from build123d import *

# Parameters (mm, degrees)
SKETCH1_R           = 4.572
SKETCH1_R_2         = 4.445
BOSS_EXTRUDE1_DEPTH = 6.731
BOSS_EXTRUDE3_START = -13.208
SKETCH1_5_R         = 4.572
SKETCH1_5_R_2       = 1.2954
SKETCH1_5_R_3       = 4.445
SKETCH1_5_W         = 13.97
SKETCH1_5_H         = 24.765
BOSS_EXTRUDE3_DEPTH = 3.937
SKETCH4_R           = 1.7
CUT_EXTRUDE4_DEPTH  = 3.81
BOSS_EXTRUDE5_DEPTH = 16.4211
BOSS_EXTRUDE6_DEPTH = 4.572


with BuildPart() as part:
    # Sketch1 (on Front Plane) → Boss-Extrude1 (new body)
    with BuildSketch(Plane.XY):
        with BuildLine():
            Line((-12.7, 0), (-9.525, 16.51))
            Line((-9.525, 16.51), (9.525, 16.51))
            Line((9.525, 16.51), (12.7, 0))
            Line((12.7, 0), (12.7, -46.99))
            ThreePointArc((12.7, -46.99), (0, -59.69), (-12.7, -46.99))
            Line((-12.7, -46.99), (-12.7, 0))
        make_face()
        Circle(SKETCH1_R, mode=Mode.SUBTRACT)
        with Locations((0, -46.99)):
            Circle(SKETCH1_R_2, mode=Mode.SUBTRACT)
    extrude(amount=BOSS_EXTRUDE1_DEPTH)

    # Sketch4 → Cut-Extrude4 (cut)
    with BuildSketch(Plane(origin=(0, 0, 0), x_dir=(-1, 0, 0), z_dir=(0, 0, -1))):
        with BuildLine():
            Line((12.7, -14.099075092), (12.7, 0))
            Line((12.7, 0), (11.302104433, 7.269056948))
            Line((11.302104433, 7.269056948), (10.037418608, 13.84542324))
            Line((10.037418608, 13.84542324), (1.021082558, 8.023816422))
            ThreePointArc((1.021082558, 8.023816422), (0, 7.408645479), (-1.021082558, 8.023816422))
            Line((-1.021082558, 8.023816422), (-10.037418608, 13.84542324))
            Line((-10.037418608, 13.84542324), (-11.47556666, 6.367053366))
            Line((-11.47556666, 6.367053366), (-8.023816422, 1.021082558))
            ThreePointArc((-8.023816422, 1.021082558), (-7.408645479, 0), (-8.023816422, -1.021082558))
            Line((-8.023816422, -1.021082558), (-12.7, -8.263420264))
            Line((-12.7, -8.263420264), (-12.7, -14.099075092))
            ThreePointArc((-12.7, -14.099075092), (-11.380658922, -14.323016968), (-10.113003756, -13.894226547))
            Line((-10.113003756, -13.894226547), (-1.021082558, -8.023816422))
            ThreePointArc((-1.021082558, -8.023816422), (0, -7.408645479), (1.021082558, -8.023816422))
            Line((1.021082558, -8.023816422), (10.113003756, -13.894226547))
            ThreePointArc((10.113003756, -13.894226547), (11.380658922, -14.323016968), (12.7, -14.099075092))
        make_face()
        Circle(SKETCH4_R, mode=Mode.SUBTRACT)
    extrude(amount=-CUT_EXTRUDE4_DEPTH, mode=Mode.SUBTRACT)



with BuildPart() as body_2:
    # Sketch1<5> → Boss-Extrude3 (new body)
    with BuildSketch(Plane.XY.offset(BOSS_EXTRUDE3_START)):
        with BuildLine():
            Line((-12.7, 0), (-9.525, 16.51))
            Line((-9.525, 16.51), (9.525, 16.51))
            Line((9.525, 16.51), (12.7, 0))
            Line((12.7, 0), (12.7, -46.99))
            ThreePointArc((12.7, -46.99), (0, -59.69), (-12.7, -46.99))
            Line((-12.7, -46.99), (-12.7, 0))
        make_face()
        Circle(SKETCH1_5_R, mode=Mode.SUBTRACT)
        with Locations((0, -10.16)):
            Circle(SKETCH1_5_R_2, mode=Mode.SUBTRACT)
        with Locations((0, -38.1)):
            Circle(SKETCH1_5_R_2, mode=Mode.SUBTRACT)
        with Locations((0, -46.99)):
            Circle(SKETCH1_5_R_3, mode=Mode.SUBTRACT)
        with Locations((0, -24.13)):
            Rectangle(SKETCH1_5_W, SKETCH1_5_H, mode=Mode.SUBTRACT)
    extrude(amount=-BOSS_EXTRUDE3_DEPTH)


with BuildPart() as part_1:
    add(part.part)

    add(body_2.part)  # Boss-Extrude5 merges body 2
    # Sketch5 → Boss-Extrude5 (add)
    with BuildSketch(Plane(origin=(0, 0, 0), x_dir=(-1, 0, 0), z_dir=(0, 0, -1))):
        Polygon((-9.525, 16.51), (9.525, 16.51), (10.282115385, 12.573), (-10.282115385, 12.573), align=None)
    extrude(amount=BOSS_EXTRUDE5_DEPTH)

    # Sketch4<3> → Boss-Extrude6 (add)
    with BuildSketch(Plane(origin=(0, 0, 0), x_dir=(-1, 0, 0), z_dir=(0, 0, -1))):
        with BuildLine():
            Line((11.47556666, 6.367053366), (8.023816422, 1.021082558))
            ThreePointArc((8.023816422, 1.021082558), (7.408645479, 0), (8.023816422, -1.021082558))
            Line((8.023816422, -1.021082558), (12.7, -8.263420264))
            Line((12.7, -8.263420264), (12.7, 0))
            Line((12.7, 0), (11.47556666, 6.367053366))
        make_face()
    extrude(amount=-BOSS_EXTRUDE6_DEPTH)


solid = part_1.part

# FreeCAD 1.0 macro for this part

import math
import FreeCAD as App
import Part
import Sketcher
from FreeCAD import Vector
Q = App.Units.Quantity


def add_polygon(sketch, points):
    """Adds a closed chain of lines whose ends are joined by coincident constraints."""
    first, n = sketch.GeometryCount, len(points)
    for a, b in zip(points, points[1:] + points[:1]):
        sketch.addGeometry(Part.LineSegment(App.Vector(*a, 0), App.Vector(*b, 0)), False)
    for i in range(n):
        sketch.addConstraint(Sketcher.Constraint("Coincident", first + i, 2, first + (i + 1) % n, 1))

doc = App.newDocument("Part")
params = doc.addObject("Spreadsheet::Sheet", "Params")
for row, (alias, value) in enumerate([
    ("sketch1_radius", "0.5 in"),
    ("sketch1_diameter", "0.35 in"),
    ("sketch1_diameter2", "0.36 in"),
    ("sketch1_width", "0.75 in"),
    ("sketch1_height", "1.85 in"),
    ("pad1_length", "0.265 in"),
    ("pocket1_length", "0.15 in"),
    ("sketch3_radius", "0.5 in"),
    ("sketch3_diameter", "0.35 in"),
    ("sketch3_diameter2", "0.36 in"),
    ("sketch3_diameter3", "0.102 in"),
    ("sketch3_width", "0.75 in"),
    ("pad2_length", "0.155 in"),
    ("sketch4_width", "0.75 in"),
    ("pad3_length", "0.6465 in"),
    ("pad4_length", "0.18 in"),
], start=1):
    params.set(f"A{row}", alias)
    params.set(f"B{row}", "=" + value)
    params.setAlias(f"B{row}", alias)

body = doc.addObject("PartDesign::Body", "Body")

# Sketch on XY plane
sketch1 = body.newObject("Sketcher::SketchObject", "Sketch")
sketch1.AttachmentSupport = (doc.getObject("XY_Plane"), [""])
sketch1.MapMode = "FlatFace"
sketch1.addGeometry([
    Part.LineSegment(Vector(-9.5, 16.5, 0), Vector(-12.7, 0, 0)),  # 0
    Part.LineSegment(Vector(-12.7, 0, 0), Vector(-12.7, -47, 0)),  # 1
    Part.ArcOfCircle(Part.Circle(Vector(0, -47, 0), Vector(0, 0, 1), 12.7), math.radians(180), math.radians(360)),  # 2
    Part.LineSegment(Vector(12.7, -47, 0), Vector(12.7, 0, 0)),  # 3
    Part.LineSegment(Vector(12.7, 0, 0), Vector(9.5, 16.5, 0)),  # 4
    Part.LineSegment(Vector(9.5, 16.5, 0), Vector(-9.5, 16.5, 0)),  # 5
    Part.Circle(Vector(0, -47, 0), Vector(0, 0, 1), 4.4),  # 6
    Part.Circle(Vector(0, 0, 0), Vector(0, 0, 1), 4.6),  # 7
], False)
sketch1.addConstraint([
    Sketcher.Constraint("Coincident", 0, 2, 1, 1),
    Sketcher.Constraint("Tangent", 1, 2, 2, 1),
    Sketcher.Constraint("Tangent", 2, 2, 3, 1),
    Sketcher.Constraint("Coincident", 3, 2, 4, 1),
    Sketcher.Constraint("Coincident", 4, 2, 5, 1),
    Sketcher.Constraint("Coincident", 5, 2, 0, 1),
    Sketcher.Constraint("Vertical", 1),
    Sketcher.Constraint("Vertical", 3),
    Sketcher.Constraint("Horizontal", 5),
    Sketcher.Constraint("Coincident", 7, 3, -1, 1),
    Sketcher.Constraint("Coincident", 6, 3, 2, 3),
    Sketcher.Constraint("Symmetric", 0, 2, 3, 2, -1, 1),
    Sketcher.Constraint("PointOnObject", 0, 2, -1),
    Sketcher.Constraint("Equal", 0, 4),
    Sketcher.Constraint("Radius", 2, Q("0.5 in")),
    Sketcher.Constraint("Diameter", 6, Q("0.35 in")),
    Sketcher.Constraint("Diameter", 7, Q("0.36 in")),
    Sketcher.Constraint("DistanceX", 5, 2, 5, 1, Q("0.75 in")),
    Sketcher.Constraint("DistanceY", 1, 2, 1, 1, Q("1.85 in")),
    Sketcher.Constraint("DistanceY", 2, 2, 4, 2, Q("2.5 in")),
])
sketch1.setExpression("Constraints[14]", "Params.sketch1_radius")
sketch1.setExpression("Constraints[15]", "Params.sketch1_diameter")
sketch1.setExpression("Constraints[16]", "Params.sketch1_diameter2")
sketch1.setExpression("Constraints[17]", "Params.sketch1_width")
sketch1.setExpression("Constraints[18]", "Params.sketch1_height")
pad1 = body.newObject("PartDesign::Pad", "Pad")
pad1.Profile = sketch1
pad1.setExpression("Length", "Params.pad1_length")

# Sketch on XY plane
sketch2 = body.newObject("Sketcher::SketchObject", "Sketch001")
sketch2.AttachmentSupport = (doc.getObject("XY_Plane"), [""])
sketch2.MapMode = "FlatFace"
sketch2.addGeometry([
    Part.LineSegment(Vector(-12.7, -14.1, 0), Vector(-12.7, 0, 0)),  # 0
    Part.LineSegment(Vector(-12.7, 0, 0), Vector(-11.3, 7.3, 0)),  # 1
    Part.LineSegment(Vector(-11.3, 7.3, 0), Vector(-10, 13.8, 0)),  # 2
    Part.LineSegment(Vector(-10, 13.8, 0), Vector(-1, 8, 0)),  # 3
    Part.ArcOfCircle(Part.Circle(Vector(0, 8.6, 0), Vector(0, 0, 1), 1.2), math.radians(-152), math.radians(-28)),  # 4
    Part.LineSegment(Vector(1, 8, 0), Vector(10, 13.8, 0)),  # 5
    Part.LineSegment(Vector(10, 13.8, 0), Vector(11.5, 6.4, 0)),  # 6
    Part.LineSegment(Vector(11.5, 6.4, 0), Vector(8, 1, 0)),  # 7
    Part.ArcOfCircle(Part.Circle(Vector(8.6, 0, 0), Vector(0, 0, 1), 1.2), math.radians(118), math.radians(242)),  # 8
    Part.LineSegment(Vector(8, -1, 0), Vector(12.7, -8.3, 0)),  # 9
    Part.LineSegment(Vector(12.7, -8.3, 0), Vector(12.7, -14.1, 0)),  # 10
    Part.ArcOfCircle(Part.Circle(Vector(11.6, -11.6, 0), Vector(0, 0, 1), 2.7), math.radians(-123), math.radians(-66)),  # 11
    Part.LineSegment(Vector(10.1, -13.9, 0), Vector(1, -8, 0)),  # 12
    Part.ArcOfCircle(Part.Circle(Vector(0, -8.6, 0), Vector(0, 0, 1), 1.2), math.radians(28), math.radians(152)),  # 13
    Part.LineSegment(Vector(-1, -8, 0), Vector(-10.1, -13.9, 0)),  # 14
    Part.ArcOfCircle(Part.Circle(Vector(-11.6, -11.6, 0), Vector(0, 0, 1), 2.7), math.radians(-114), math.radians(-57)),  # 15
    Part.Circle(Vector(0, 0, 0), Vector(0, 0, 1), 1.7),  # 16
], False)
sketch2.addConstraint([
    Sketcher.Constraint("Coincident", 0, 2, 1, 1),
    Sketcher.Constraint("Coincident", 1, 2, 2, 1),
    Sketcher.Constraint("Coincident", 2, 2, 3, 1),
    Sketcher.Constraint("Coincident", 3, 2, 4, 1),
    Sketcher.Constraint("Coincident", 4, 2, 5, 1),
    Sketcher.Constraint("Coincident", 5, 2, 6, 1),
    Sketcher.Constraint("Coincident", 6, 2, 7, 1),
    Sketcher.Constraint("Coincident", 7, 2, 8, 1),
    Sketcher.Constraint("Coincident", 8, 2, 9, 1),
    Sketcher.Constraint("Coincident", 9, 2, 10, 1),
    Sketcher.Constraint("Coincident", 10, 2, 11, 2),
    Sketcher.Constraint("Tangent", 11, 1, 12, 1),
    Sketcher.Constraint("Coincident", 12, 2, 13, 1),
    Sketcher.Constraint("Coincident", 13, 2, 14, 1),
    Sketcher.Constraint("Tangent", 14, 2, 15, 2),
    Sketcher.Constraint("Coincident", 15, 1, 0, 1),
    Sketcher.Constraint("Vertical", 0),
    Sketcher.Constraint("Vertical", 10),
    Sketcher.Constraint("Coincident", 16, 3, -1, 1),
    Sketcher.Constraint("Equal", 4, 8),
    Sketcher.Constraint("Equal", 8, 13),
    Sketcher.Constraint("Equal", 11, 15),
    Sketcher.Constraint("Symmetric", 4, 3, 13, 3, -1, 1),
    Sketcher.Constraint("Symmetric", 11, 3, 15, 3, -2),
    Sketcher.Constraint("Symmetric", 3, 2, 4, 2, -2),
    Sketcher.Constraint("Symmetric", 2, 2, 5, 2, -2),
    Sketcher.Constraint("Symmetric", 7, 2, 8, 2, -1),
    Sketcher.Constraint("PointOnObject", 0, 2, -1),
    Sketcher.Constraint("Parallel", 1, 2),
    Sketcher.Constraint("Perpendicular", 3, 7),
    Sketcher.Constraint("Perpendicular", 5, 9),
    Sketcher.Constraint("Perpendicular", 7, 12),
    Sketcher.Constraint("Perpendicular", 9, 14),
    Sketcher.Constraint("Horizontal", 10, 2, 15, 1),
    Sketcher.Constraint("Vertical", 4, 2, 12, 2),
    Sketcher.Constraint("DistanceX", 0, 2, -1, 1, Q("0.5 in")),
    Sketcher.Constraint("Diameter", 16, Q("3.4 mm")),
    Sketcher.Constraint("Radius", 4, Q("1.155 mm")),
    Sketcher.Constraint("Radius", 11, Q("2.735 mm")),
    Sketcher.Constraint("DistanceX", 3, 2, -1, 1, Q("0.0402001 in")),
    Sketcher.Constraint("DistanceY", -1, 1, 7, 2, Q("0.0402001 in")),
    Sketcher.Constraint("DistanceX", 3, 2, 5, 2, Q("11.058501 mm")),
    Sketcher.Constraint("DistanceX", 13, 2, 8, 2, Q("9.044899 mm")),
    Sketcher.Constraint("Distance", 1, Q("7.40225 mm")),
    Sketcher.Constraint("Distance", 7, Q("6.363488 mm")),
    Sketcher.Constraint("Distance", 12, Q("10.822419 mm")),
    Sketcher.Constraint("DistanceY", 0, 1, 0, 2, Q("14.099075 mm")),
    Sketcher.Constraint("DistanceY", 10, 2, 10, 1, Q("5.835655 mm")),
])
pocket1 = body.newObject("PartDesign::Pocket", "Pocket")
pocket1.Profile = sketch2
pocket1.setExpression("Length", "Params.pocket1_length")
pocket1.Reversed = True
body2 = doc.addObject("PartDesign::Body", "Body001")

# Sketch on XY plane
sketch3 = body2.newObject("Sketcher::SketchObject", "Sketch002")
sketch3.AttachmentSupport = (doc.getObject("XY_Plane001"), [""])
sketch3.MapMode = "FlatFace"
sketch3.AttachmentOffset = App.Placement(Vector(0, 0, -0.52 * 25.4), App.Rotation())
sketch3.addGeometry(Part.LineSegment(Vector(-9.5, 16.5, 0), Vector(-12.7, 0, 0)), False)  # 0
sketch3.addGeometry(Part.LineSegment(Vector(-12.7, 0, 0), Vector(-12.7, -47, 0)), False)  # 1
sketch3.addGeometry(Part.ArcOfCircle(Part.Circle(Vector(0, -47, 0), Vector(0, 0, 1), 12.7), math.radians(180), math.radians(360)), False)  # 2
sketch3.addGeometry(Part.LineSegment(Vector(12.7, -47, 0), Vector(12.7, 0, 0)), False)  # 3
sketch3.addGeometry(Part.LineSegment(Vector(12.7, 0, 0), Vector(9.5, 16.5, 0)), False)  # 4
sketch3.addGeometry(Part.LineSegment(Vector(9.5, 16.5, 0), Vector(-9.5, 16.5, 0)), False)  # 5
sketch3.addGeometry(Part.Circle(Vector(0, -47, 0), Vector(0, 0, 1), 4.4), False)  # 6
sketch3.addGeometry(Part.Circle(Vector(0, -38.1, 0), Vector(0, 0, 1), 1.3), False)  # 7
add_polygon(sketch3, [(-7, -36.5), (-7, -11.7), (7, -11.7), (7, -36.5)])  # lines 8-11
sketch3.addGeometry(Part.Circle(Vector(0, -10.2, 0), Vector(0, 0, 1), 1.3), False)  # 12
sketch3.addGeometry(Part.Circle(Vector(0, 0, 0), Vector(0, 0, 1), 4.6), False)  # 13
sketch3.addConstraint([
    Sketcher.Constraint("Coincident", 0, 2, 1, 1),
    Sketcher.Constraint("Tangent", 1, 2, 2, 1),
    Sketcher.Constraint("Tangent", 2, 2, 3, 1),
    Sketcher.Constraint("Coincident", 3, 2, 4, 1),
    Sketcher.Constraint("Coincident", 4, 2, 5, 1),
    Sketcher.Constraint("Coincident", 5, 2, 0, 1),
    Sketcher.Constraint("Vertical", 1),
    Sketcher.Constraint("Vertical", 3),
    Sketcher.Constraint("Horizontal", 5),
    Sketcher.Constraint("Vertical", 8),
    Sketcher.Constraint("Horizontal", 9),
    Sketcher.Constraint("Vertical", 10),
    Sketcher.Constraint("Horizontal", 11),
    Sketcher.Constraint("Coincident", 13, 3, -1, 1),
    Sketcher.Constraint("Coincident", 6, 3, 2, 3),
    Sketcher.Constraint("Equal", 7, 12),
    Sketcher.Constraint("Symmetric", 0, 2, 3, 2, -1, 1),
    Sketcher.Constraint("PointOnObject", 7, 3, -2),
    Sketcher.Constraint("PointOnObject", 12, 3, -2),
    Sketcher.Constraint("PointOnObject", 0, 2, -1),
    Sketcher.Constraint("Equal", 0, 4),
    Sketcher.Constraint("Radius", 2, Q("0.5 in")),
    Sketcher.Constraint("Diameter", 6, Q("0.35 in")),
    Sketcher.Constraint("Diameter", 13, Q("0.36 in")),
    Sketcher.Constraint("Diameter", 7, Q("0.102 in")),
    Sketcher.Constraint("DistanceX", 5, 2, 5, 1, Q("0.75 in")),
    Sketcher.Constraint("DistanceX", 9, 1, 9, 2, Q("0.55 in")),
    Sketcher.Constraint("DistanceY", 1, 2, 1, 1, Q("1.85 in")),
    Sketcher.Constraint("DistanceY", 7, 3, -1, 1, Q("1.5 in")),
    Sketcher.Constraint("DistanceY", 12, 3, -1, 1, Q("0.4 in")),
    Sketcher.Constraint("DistanceY", 8, 1, 8, 2, Q("0.975 in")),
    Sketcher.Constraint("DistanceY", -1, 1, 4, 2, Q("0.65 in")),
    Sketcher.Constraint("DistanceX", 8, 2, -1, 1, Q("0.275 in")),
    Sketcher.Constraint("DistanceY", 10, 2, -1, 1, Q("1.4375 in")),
])
sketch3.setExpression("Constraints[25]", "Params.sketch3_radius")
sketch3.setExpression("Constraints[26]", "Params.sketch3_diameter")
sketch3.setExpression("Constraints[27]", "Params.sketch3_diameter2")
sketch3.setExpression("Constraints[28]", "Params.sketch3_diameter3")
sketch3.setExpression("Constraints[29]", "Params.sketch3_width")
pad2 = body2.newObject("PartDesign::Pad", "Pad001")
pad2.Profile = sketch3
pad2.setExpression("Length", "Params.pad2_length")
pad2.Reversed = True
body.AllowCompound = True
doc.recompute()

boolean = body.newObject("PartDesign::Boolean", "Boolean")
boolean.Type = "Fuse"
boolean.addObjects([body2])

# Sketch on XY plane
sketch4 = body.newObject("Sketcher::SketchObject", "Sketch003")
sketch4.AttachmentSupport = (doc.getObject("XY_Plane"), [""])
sketch4.MapMode = "FlatFace"
add_polygon(sketch4, [(-9.5, 16.5), (9.5, 16.5), (10.3, 12.6), (-10.3, 12.6)])  # lines 0-3
sketch4.addConstraint([
    Sketcher.Constraint("Horizontal", 0),
    Sketcher.Constraint("Horizontal", 2),
    Sketcher.Constraint("Equal", 1, 3),
    Sketcher.Constraint("DistanceX", 0, 1, 0, 2, Q("0.75 in")),
    Sketcher.Constraint("DistanceY", -1, 1, 0, 2, Q("0.65 in")),
    Sketcher.Constraint("DistanceX", -1, 1, 0, 2, Q("0.375 in")),
    Sketcher.Constraint("DistanceY", -1, 1, 1, 2, Q("0.495 in")),
    Sketcher.Constraint("DistanceX", 2, 2, 2, 1, Q("20.564231 mm")),
])
sketch4.setExpression("Constraints[7]", "Params.sketch4_width")
pad3 = body.newObject("PartDesign::Pad", "Pad002")
pad3.Profile = sketch4
pad3.setExpression("Length", "Params.pad3_length")
pad3.Reversed = True

# Sketch on XY plane
sketch5 = body.newObject("Sketcher::SketchObject", "Sketch004")
sketch5.AttachmentSupport = (doc.getObject("XY_Plane"), [""])
sketch5.MapMode = "FlatFace"
sketch5.addGeometry([
    Part.LineSegment(Vector(-11.5, 6.4, 0), Vector(-8, 1, 0)),  # 0
    Part.ArcOfCircle(Part.Circle(Vector(-8.6, 0, 0), Vector(0, 0, 1), 1.2), math.radians(-62), math.radians(62)),  # 1
    Part.LineSegment(Vector(-8, -1, 0), Vector(-12.7, -8.3, 0)),  # 2
    Part.LineSegment(Vector(-12.7, -8.3, 0), Vector(-12.7, 0, 0)),  # 3
    Part.LineSegment(Vector(-12.7, 0, 0), Vector(-11.5, 6.4, 0)),  # 4
], False)
sketch5.addConstraint([
    Sketcher.Constraint("Coincident", 0, 2, 1, 2),
    Sketcher.Constraint("Coincident", 1, 1, 2, 1),
    Sketcher.Constraint("Coincident", 2, 2, 3, 1),
    Sketcher.Constraint("Coincident", 3, 2, 4, 1),
    Sketcher.Constraint("Coincident", 4, 2, 0, 1),
    Sketcher.Constraint("Vertical", 3),
    Sketcher.Constraint("Symmetric", 0, 2, 1, 1, -1),
    Sketcher.Constraint("PointOnObject", 3, 2, -1),
    Sketcher.Constraint("DistanceX", 2, 2, -1, 1, Q("0.5 in")),
    Sketcher.Constraint("Radius", 1, Q("1.155 mm")),
    Sketcher.Constraint("DistanceY", -1, 1, 0, 2, Q("0.0402001 in")),
    Sketcher.Constraint("DistanceY", 3, 1, 3, 2, Q("8.26342 mm")),
    Sketcher.Constraint("Distance", 0, Q("6.363488 mm")),
    Sketcher.Constraint("Distance", 4, Q("6.483718 mm")),
    Sketcher.Constraint("DistanceX", 4, 2, 0, 2, Q("3.45175 mm")),
])
pad4 = body.newObject("PartDesign::Pad", "Pad003")
pad4.Profile = sketch5
pad4.setExpression("Length", "Params.pad4_length")

doc.recompute()
